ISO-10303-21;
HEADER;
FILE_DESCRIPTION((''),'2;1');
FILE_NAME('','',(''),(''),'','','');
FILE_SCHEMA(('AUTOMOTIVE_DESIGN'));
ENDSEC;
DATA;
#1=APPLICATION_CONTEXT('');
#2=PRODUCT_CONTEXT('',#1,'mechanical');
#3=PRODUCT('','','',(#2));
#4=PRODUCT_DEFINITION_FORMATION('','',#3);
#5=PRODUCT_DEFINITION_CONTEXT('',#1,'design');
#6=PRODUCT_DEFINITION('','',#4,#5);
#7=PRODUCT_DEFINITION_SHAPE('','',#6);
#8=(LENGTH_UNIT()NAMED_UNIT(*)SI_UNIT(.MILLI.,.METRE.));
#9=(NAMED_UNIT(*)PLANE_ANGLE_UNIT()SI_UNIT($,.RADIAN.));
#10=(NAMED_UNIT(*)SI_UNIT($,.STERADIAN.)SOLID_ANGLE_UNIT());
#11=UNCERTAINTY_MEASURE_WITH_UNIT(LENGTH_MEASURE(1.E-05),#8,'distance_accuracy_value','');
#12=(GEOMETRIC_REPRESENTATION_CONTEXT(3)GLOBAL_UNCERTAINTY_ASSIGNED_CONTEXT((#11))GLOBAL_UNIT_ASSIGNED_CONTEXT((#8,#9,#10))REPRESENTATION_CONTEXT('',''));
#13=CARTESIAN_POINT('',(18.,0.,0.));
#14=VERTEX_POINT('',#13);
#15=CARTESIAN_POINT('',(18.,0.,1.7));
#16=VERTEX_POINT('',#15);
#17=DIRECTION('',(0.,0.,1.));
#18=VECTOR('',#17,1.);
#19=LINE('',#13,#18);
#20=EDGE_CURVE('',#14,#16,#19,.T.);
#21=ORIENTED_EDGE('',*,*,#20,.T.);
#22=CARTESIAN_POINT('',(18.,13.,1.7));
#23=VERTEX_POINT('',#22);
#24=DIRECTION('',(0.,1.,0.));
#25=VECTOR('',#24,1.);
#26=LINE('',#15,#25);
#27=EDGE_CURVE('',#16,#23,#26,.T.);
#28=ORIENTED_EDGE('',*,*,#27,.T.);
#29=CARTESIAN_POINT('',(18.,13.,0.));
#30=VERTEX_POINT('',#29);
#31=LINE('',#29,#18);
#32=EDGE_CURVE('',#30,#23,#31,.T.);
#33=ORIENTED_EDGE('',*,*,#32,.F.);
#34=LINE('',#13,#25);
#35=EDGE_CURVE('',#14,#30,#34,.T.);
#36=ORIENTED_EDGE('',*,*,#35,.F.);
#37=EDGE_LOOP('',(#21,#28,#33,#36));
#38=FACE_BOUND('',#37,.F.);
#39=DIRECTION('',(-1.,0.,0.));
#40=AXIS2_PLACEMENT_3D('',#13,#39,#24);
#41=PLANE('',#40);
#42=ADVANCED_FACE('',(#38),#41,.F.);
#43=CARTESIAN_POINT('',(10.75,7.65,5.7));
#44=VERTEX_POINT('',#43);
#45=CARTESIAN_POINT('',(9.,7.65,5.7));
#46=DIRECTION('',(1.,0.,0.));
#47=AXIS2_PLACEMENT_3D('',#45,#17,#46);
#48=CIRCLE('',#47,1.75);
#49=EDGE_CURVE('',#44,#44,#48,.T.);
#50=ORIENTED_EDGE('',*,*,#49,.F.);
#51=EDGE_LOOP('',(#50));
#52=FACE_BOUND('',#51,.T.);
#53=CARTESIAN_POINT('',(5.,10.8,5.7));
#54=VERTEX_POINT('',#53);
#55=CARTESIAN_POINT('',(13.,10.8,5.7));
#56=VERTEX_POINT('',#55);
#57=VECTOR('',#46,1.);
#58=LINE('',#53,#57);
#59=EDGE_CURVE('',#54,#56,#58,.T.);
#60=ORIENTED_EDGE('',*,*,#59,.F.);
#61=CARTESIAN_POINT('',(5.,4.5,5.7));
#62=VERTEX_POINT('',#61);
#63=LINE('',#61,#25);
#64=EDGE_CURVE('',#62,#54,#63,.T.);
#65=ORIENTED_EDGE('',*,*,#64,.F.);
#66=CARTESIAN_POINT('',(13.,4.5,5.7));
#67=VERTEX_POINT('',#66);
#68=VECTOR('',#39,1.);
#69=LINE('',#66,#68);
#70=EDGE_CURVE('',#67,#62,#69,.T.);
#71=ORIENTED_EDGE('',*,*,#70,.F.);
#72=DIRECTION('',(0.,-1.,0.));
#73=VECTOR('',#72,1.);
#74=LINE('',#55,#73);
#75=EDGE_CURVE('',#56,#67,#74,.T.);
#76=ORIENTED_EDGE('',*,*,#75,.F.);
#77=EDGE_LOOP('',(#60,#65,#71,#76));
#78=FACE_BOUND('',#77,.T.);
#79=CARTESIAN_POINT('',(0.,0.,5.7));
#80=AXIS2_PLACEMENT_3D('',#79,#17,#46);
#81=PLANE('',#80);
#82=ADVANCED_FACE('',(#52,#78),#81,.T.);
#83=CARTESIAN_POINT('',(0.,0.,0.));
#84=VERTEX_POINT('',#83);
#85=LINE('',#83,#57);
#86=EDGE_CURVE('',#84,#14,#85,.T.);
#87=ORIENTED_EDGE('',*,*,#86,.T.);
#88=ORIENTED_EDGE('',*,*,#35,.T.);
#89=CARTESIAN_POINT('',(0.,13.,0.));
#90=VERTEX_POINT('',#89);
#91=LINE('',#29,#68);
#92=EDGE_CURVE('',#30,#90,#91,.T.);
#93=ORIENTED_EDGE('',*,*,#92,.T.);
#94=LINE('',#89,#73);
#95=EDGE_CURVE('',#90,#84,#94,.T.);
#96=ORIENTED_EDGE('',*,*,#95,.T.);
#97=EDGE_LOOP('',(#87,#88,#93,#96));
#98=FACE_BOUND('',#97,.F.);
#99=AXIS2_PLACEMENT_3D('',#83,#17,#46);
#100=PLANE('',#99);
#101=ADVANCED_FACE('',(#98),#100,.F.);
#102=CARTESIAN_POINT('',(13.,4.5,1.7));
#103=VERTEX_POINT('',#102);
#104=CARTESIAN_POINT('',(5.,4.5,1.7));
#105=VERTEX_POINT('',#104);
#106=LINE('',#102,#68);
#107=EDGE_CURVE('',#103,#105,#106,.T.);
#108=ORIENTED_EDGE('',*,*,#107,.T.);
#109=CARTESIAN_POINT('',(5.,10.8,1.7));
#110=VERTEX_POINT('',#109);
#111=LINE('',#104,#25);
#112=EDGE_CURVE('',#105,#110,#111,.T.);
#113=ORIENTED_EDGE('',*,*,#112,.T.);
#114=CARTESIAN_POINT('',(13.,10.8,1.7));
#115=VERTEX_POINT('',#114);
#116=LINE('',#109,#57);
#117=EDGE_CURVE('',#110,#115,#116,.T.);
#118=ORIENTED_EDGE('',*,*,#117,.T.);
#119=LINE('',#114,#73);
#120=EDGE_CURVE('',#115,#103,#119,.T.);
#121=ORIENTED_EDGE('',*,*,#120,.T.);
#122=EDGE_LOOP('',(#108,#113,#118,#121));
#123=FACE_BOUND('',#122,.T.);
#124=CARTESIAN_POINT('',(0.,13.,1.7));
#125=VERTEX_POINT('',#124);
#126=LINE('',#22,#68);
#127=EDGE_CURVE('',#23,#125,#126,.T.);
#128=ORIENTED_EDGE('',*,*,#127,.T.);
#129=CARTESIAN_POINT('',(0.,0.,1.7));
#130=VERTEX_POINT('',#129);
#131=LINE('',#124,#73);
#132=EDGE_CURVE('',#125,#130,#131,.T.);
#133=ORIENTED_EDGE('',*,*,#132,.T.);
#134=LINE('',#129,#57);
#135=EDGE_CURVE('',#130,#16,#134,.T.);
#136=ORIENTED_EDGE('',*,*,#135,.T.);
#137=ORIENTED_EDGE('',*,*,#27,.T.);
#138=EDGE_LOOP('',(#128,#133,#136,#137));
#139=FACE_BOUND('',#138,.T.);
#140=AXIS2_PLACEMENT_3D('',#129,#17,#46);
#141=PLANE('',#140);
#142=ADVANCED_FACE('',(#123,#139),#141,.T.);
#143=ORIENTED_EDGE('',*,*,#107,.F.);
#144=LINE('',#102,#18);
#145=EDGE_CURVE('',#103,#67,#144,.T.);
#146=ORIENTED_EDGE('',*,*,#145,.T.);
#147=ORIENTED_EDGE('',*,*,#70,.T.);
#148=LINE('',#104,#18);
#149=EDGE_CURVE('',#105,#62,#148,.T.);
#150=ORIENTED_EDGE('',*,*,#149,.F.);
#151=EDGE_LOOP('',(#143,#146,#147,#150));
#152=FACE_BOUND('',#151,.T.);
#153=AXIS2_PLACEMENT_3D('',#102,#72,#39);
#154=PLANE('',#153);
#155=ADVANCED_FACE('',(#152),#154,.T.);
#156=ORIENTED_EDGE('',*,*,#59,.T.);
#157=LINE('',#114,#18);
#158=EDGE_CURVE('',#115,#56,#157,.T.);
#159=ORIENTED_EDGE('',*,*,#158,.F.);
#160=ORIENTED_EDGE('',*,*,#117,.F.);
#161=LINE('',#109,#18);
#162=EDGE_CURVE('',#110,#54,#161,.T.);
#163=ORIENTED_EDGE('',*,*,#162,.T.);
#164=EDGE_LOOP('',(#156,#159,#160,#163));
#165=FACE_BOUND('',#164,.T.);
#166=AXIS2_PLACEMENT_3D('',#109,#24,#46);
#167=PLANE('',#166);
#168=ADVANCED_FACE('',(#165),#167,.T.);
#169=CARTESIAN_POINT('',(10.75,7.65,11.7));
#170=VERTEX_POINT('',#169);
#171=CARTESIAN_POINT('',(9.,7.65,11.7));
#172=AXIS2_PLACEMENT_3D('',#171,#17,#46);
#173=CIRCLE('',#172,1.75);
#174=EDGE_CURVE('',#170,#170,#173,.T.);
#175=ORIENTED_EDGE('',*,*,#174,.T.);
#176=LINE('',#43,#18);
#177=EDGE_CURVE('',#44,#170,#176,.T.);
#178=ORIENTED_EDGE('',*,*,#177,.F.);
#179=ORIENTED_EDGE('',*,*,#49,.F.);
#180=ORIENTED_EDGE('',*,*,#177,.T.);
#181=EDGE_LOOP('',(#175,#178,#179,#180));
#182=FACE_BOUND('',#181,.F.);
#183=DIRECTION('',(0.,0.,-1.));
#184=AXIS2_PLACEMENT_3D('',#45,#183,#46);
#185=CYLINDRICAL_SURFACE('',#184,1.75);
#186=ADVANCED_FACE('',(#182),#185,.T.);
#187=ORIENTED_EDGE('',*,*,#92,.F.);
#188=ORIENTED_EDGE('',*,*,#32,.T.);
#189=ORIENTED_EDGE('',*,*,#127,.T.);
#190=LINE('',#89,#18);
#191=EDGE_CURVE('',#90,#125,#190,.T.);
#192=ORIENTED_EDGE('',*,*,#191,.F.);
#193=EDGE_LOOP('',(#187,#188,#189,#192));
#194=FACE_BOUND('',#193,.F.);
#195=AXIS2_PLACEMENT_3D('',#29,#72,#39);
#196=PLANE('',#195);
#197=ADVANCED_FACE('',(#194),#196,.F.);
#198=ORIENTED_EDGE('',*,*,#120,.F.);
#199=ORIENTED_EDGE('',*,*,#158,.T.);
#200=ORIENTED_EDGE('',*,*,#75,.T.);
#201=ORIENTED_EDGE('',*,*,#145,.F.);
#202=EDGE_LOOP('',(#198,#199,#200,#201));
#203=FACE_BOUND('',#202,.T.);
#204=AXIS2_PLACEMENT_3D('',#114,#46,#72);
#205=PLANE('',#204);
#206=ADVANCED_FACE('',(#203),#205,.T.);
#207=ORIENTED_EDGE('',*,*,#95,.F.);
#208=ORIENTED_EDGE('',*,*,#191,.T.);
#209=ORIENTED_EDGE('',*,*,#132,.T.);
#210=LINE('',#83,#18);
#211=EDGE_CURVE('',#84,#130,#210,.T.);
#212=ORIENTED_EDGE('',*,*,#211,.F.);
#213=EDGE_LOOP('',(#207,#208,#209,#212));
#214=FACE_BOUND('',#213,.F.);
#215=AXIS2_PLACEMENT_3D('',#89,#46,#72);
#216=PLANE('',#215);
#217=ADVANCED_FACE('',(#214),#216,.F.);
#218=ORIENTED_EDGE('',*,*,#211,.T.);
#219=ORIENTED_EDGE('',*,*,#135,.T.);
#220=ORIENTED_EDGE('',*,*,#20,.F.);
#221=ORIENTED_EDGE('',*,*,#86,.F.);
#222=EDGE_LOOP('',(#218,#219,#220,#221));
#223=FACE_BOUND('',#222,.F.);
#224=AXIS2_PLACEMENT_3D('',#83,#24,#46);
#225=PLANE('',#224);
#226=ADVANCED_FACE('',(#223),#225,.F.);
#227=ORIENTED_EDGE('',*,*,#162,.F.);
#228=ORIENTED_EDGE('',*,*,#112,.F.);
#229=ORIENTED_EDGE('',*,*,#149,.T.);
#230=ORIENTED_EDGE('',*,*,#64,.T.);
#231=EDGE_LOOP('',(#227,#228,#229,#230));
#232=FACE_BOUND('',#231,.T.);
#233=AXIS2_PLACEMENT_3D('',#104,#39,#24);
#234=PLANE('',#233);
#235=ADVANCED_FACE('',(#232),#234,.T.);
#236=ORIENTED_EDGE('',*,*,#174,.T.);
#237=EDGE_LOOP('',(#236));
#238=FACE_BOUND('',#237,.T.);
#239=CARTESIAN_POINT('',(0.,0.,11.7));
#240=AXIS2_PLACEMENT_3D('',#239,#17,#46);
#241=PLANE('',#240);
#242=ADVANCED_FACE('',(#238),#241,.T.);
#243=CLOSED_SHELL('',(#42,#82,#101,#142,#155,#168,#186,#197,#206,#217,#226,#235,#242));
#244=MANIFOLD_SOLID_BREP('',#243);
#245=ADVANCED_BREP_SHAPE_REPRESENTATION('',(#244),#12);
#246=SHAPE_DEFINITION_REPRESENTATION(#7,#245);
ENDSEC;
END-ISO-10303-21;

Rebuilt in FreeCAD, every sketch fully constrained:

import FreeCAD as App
import Part
import Sketcher

V = App.Vector

doc = App.newDocument("Part")
params = doc.addObject("Spreadsheet::Sheet", "Params")
for row, (alias, value) in enumerate([
    ("sketch1_width", "18 mm"),
    ("sketch1_height", "13 mm"),
    ("pad1_length", "1.7 mm"),
    ("sketch2_width", "8 mm"),
    ("sketch2_height", "6.3 mm"),
    ("pad2_length", "4 mm"),
    ("sketch3_diameter", "3.5 mm"),
    ("pad3_length", "6 mm"),
], start=1):
    params.set(f"A{row}", alias)
    params.set(f"B{row}", "=" + value)
    params.setAlias(f"B{row}", alias)

body = doc.addObject("PartDesign::Body", "Body")

sketch1 = doc.addObject("Sketcher::SketchObject", "Sketch")
body.addObject(sketch1)
sketch1.AttachmentSupport = (doc.XY_Plane, [""])
sketch1.MapMode = "FlatFace"
sketch1.addGeometry(Part.LineSegment(V(0, 13, 0), V(0, 0, 0)), False)
sketch1.addGeometry(Part.LineSegment(V(0, 0, 0), V(18, 0, 0)), False)
sketch1.addGeometry(Part.LineSegment(V(18, 0, 0), V(18, 13, 0)), False)
sketch1.addGeometry(Part.LineSegment(V(18, 13, 0), V(0, 13, 0)), False)
sketch1.addConstraint(Sketcher.Constraint("Coincident", 0, 2, 1, 1))
sketch1.addConstraint(Sketcher.Constraint("Coincident", 1, 2, 2, 1))
sketch1.addConstraint(Sketcher.Constraint("Coincident", 2, 2, 3, 1))
sketch1.addConstraint(Sketcher.Constraint("Coincident", 3, 2, 0, 1))
sketch1.addConstraint(Sketcher.Constraint("Vertical", 0))
sketch1.addConstraint(Sketcher.Constraint("Horizontal", 1))
sketch1.addConstraint(Sketcher.Constraint("Vertical", 2))
sketch1.addConstraint(Sketcher.Constraint("Horizontal", 3))
sketch1.addConstraint(Sketcher.Constraint("Coincident", 0, 2, -1, 1))
sketch1.addConstraint(Sketcher.Constraint("DistanceX", 1, 1, 1, 2, 18.0))
sketch1.addConstraint(Sketcher.Constraint("DistanceY", 0, 2, 0, 1, 13.0))
sketch1.setExpression("Constraints[9]", "Params.sketch1_width")
sketch1.setExpression("Constraints[10]", "Params.sketch1_height")
pad1 = doc.addObject("PartDesign::Pad", "Pad")
body.addObject(pad1)
pad1.Profile = sketch1
pad1.setExpression("Length", "Params.pad1_length")

sketch2 = doc.addObject("Sketcher::SketchObject", "Sketch001")
body.addObject(sketch2)
sketch2.AttachmentSupport = (doc.XY_Plane, [""])
sketch2.MapMode = "FlatFace"
sketch2.AttachmentOffset = App.Placement(V(0, 0, 1.7), App.Rotation())
sketch2.addGeometry(Part.LineSegment(V(13, 10.8, 0), V(5, 10.8, 0)), False)
sketch2.addGeometry(Part.LineSegment(V(5, 10.8, 0), V(5, 4.5, 0)), False)
sketch2.addGeometry(Part.LineSegment(V(5, 4.5, 0), V(13, 4.5, 0)), False)
sketch2.addGeometry(Part.LineSegment(V(13, 4.5, 0), V(13, 10.8, 0)), False)
sketch2.addConstraint(Sketcher.Constraint("Coincident", 0, 2, 1, 1))
sketch2.addConstraint(Sketcher.Constraint("Coincident", 1, 2, 2, 1))
sketch2.addConstraint(Sketcher.Constraint("Coincident", 2, 2, 3, 1))
sketch2.addConstraint(Sketcher.Constraint("Coincident", 3, 2, 0, 1))
sketch2.addConstraint(Sketcher.Constraint("Horizontal", 0))
sketch2.addConstraint(Sketcher.Constraint("Vertical", 1))
sketch2.addConstraint(Sketcher.Constraint("Horizontal", 2))
sketch2.addConstraint(Sketcher.Constraint("Vertical", 3))
sketch2.addConstraint(Sketcher.Constraint("DistanceX", 0, 2, 0, 1, 8.0))
sketch2.addConstraint(Sketcher.Constraint("DistanceY", 1, 2, 1, 1, 6.3))
sketch2.addConstraint(Sketcher.Constraint("DistanceX", -1, 1, 0, 2, 5.0))
sketch2.addConstraint(Sketcher.Constraint("DistanceY", -1, 1, 0, 2, 10.8))
sketch2.setExpression("Constraints[8]", "Params.sketch2_width")
sketch2.setExpression("Constraints[9]", "Params.sketch2_height")
pad2 = doc.addObject("PartDesign::Pad", "Pad001")
body.addObject(pad2)
pad2.Profile = sketch2
pad2.setExpression("Length", "Params.pad2_length")

sketch3 = doc.addObject("Sketcher::SketchObject", "Sketch002")
body.addObject(sketch3)
sketch3.AttachmentSupport = (doc.XY_Plane, [""])
sketch3.MapMode = "FlatFace"
sketch3.AttachmentOffset = App.Placement(V(0, 0, 5.7), App.Rotation())
sketch3.addGeometry(Part.Circle(V(9, 7.65, 0), V(0, 0, 1), 1.75), False)
sketch3.addConstraint(Sketcher.Constraint("Diameter", 0, 3.5))
sketch3.addConstraint(Sketcher.Constraint("DistanceX", -1, 1, 0, 3, 9.0))
sketch3.addConstraint(Sketcher.Constraint("DistanceY", -1, 1, 0, 3, 7.65))
sketch3.setExpression("Constraints[0]", "Params.sketch3_diameter")
pad3 = doc.addObject("PartDesign::Pad", "Pad002")
body.addObject(pad3)
pad3.Profile = sketch3
pad3.setExpression("Length", "Params.pad3_length")

doc.recompute()
